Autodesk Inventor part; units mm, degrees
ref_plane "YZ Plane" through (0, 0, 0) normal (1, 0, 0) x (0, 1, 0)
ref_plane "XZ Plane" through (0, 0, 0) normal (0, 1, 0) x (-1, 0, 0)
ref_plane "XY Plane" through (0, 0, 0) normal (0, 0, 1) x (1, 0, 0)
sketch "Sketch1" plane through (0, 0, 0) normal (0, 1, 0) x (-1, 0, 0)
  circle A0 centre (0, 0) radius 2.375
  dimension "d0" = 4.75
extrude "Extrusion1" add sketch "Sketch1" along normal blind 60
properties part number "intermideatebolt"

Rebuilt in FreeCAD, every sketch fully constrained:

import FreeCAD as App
import Part
import Sketcher
Q = App.Units.Quantity

doc = App.newDocument("Part")
body = doc.addObject("PartDesign::Body", "Body")

sketch1 = body.newObject("Sketcher::SketchObject", "Sketch")
sketch1.AttachmentSupport = (doc.getObject("XZ_Plane"), [""])
sketch1.MapMode = "FlatFace"
sketch1.addGeometry(Part.Circle(App.Vector(0, 0, 0), App.Vector(0, 0, 1), 2.375), False)
sketch1.addConstraint([
    Sketcher.Constraint("Coincident", 0, 3, -1, 1),
    Sketcher.Constraint("Diameter", 0, Q("0.187 in")),
])
pad1 = body.newObject("PartDesign::Pad", "Pad")
pad1.Profile = sketch1
pad1.Length = Q("2.3622047 in")
pad1.Reversed = True

doc.recompute()
